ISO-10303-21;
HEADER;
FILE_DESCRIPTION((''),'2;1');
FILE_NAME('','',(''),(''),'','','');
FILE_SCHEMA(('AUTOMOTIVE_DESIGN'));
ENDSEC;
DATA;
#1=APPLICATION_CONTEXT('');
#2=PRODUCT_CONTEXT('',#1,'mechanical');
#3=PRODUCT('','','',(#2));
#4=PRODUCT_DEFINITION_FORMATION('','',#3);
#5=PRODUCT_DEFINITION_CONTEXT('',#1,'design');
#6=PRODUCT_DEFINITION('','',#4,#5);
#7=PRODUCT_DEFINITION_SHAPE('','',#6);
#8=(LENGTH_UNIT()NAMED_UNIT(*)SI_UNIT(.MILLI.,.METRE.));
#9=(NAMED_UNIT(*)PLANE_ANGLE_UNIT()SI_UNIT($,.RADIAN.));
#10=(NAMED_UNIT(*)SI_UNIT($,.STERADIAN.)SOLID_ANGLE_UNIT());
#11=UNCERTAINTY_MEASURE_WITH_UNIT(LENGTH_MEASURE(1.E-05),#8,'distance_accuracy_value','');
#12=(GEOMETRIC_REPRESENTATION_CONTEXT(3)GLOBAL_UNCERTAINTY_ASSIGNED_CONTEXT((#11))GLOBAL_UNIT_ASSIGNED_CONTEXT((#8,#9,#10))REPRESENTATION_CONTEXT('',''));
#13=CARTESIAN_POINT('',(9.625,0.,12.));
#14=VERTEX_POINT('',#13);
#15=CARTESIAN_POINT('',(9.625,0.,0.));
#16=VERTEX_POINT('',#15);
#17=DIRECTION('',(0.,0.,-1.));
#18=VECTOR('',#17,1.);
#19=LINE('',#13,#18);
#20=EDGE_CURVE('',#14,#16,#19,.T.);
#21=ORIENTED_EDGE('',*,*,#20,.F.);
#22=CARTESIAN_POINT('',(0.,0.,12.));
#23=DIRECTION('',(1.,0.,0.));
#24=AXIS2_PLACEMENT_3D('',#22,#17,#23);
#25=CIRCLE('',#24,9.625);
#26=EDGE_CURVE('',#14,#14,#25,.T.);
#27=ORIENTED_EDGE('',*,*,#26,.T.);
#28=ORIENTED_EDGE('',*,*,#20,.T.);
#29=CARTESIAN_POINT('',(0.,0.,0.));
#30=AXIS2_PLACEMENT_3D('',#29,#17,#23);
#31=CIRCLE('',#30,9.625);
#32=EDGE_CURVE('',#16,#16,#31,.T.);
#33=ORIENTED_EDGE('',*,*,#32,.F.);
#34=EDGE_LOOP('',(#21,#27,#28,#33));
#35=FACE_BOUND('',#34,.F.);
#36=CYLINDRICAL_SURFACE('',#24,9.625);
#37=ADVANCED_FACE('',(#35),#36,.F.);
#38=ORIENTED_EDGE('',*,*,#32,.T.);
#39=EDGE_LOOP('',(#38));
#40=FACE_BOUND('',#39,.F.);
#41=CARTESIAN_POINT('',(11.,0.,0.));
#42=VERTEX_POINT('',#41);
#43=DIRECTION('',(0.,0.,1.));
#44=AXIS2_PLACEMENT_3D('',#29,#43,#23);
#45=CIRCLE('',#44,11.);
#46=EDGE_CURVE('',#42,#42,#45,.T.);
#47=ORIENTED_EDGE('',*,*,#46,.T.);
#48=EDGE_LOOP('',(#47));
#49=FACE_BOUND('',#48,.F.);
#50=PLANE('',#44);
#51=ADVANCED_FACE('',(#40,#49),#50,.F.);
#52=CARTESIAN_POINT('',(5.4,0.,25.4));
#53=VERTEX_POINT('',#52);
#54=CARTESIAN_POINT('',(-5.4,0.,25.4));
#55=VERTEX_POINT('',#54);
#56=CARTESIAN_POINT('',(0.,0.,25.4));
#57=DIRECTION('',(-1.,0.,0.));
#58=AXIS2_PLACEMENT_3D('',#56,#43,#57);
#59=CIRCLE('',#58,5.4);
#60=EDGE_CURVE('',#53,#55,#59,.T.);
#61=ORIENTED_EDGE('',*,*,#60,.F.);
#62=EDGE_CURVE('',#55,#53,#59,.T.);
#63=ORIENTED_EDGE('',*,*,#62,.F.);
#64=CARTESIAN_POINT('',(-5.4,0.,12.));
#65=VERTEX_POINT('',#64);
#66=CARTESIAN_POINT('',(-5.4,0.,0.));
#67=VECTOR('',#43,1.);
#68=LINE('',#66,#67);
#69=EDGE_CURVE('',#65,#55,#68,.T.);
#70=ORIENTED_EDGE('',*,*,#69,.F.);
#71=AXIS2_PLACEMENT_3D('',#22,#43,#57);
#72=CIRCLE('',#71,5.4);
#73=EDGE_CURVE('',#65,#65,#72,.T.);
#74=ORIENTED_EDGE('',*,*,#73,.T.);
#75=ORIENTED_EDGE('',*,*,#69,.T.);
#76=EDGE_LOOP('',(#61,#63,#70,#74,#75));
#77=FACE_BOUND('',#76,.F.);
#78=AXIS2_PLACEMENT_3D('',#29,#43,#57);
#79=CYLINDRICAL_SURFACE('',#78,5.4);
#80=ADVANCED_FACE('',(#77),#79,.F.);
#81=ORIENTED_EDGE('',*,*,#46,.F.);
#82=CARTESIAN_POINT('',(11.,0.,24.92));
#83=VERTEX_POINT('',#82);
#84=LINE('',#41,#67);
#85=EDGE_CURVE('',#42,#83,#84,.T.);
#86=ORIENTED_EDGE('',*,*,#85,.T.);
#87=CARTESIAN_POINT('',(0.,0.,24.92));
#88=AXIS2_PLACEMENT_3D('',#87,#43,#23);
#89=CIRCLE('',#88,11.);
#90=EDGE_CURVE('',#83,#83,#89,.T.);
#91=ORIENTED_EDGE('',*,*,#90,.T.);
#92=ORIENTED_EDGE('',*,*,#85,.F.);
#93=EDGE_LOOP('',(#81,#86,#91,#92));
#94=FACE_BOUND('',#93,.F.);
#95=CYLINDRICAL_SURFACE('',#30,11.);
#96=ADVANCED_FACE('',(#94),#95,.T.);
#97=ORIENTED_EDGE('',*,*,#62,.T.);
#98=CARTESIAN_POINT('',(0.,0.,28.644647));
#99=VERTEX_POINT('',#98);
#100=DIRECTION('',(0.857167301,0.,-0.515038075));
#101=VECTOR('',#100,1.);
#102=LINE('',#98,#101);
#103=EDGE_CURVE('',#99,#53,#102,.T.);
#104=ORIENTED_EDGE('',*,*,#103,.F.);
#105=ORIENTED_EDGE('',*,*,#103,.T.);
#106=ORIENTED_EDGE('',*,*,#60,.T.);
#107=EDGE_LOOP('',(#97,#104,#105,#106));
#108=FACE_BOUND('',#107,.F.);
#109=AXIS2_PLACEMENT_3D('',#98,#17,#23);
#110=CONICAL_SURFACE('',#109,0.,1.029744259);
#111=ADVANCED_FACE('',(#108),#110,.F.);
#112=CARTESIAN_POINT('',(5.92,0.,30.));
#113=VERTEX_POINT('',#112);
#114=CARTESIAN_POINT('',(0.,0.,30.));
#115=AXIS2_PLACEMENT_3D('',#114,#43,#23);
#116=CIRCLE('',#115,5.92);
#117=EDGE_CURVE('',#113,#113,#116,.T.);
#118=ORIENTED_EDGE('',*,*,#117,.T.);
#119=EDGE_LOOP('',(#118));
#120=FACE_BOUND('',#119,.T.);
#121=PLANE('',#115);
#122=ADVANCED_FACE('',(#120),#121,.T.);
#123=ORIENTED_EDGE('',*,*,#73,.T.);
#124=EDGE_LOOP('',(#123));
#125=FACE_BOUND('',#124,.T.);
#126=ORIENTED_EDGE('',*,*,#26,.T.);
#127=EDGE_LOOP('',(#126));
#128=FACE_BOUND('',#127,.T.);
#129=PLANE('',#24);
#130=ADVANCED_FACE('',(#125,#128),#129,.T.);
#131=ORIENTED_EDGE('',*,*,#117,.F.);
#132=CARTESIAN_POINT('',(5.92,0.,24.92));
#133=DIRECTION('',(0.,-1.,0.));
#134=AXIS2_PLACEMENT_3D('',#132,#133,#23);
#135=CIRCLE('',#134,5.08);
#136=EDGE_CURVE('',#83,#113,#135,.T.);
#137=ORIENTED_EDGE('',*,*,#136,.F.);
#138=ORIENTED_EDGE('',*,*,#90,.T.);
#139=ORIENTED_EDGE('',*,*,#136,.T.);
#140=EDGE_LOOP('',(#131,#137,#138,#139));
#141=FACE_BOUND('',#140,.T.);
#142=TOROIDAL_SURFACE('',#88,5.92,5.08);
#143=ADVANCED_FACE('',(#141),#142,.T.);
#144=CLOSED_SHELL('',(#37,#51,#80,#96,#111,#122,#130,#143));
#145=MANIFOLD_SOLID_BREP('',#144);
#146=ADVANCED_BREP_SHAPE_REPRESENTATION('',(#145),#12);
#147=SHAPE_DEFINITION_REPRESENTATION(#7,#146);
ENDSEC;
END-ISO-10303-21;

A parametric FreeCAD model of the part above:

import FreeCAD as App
import Part
import Sketcher
from FreeCAD import Vector


def edges_at(feature, points):
    """Names of the edges that pass closest to the given points."""
    edges = feature.Shape.Edges
    near = lambda p: min(range(len(edges)), key=lambda i: edges[i].distToShape(Part.Vertex(*p))[0])
    return sorted({f"Edge{near(p) + 1}" for p in points})

doc = App.newDocument("Part")
body = doc.addObject("PartDesign::Body", "Body")

sketch1 = doc.addObject("Sketcher::SketchObject", "Sketch")
body.addObject(sketch1)
sketch1.AttachmentSupport = (doc.XY_Plane, [""])
sketch1.MapMode = "FlatFace"
sketch1.addGeometry(Part.Circle(Vector(0, 0, 0), Vector(0, 0, 1), 11), False)
sketch1.addConstraint([
    Sketcher.Constraint("Coincident", 0, 3, -1, 1),
    Sketcher.Constraint("Diameter", 0, 22.0),
])
pad1 = doc.addObject("PartDesign::Pad", "Pad")
body.addObject(pad1)
pad1.Profile = sketch1
pad1.Length = 30

sketch2 = doc.addObject("Sketcher::SketchObject", "Sketch001")
body.addObject(sketch2)
sketch2.AttachmentSupport = (doc.XY_Plane, [""])
sketch2.MapMode = "FlatFace"
sketch2.addGeometry(Part.Circle(Vector(0, 0, 0), Vector(0, 0, 1), 5.4), False)
sketch2.addConstraint([
    Sketcher.Constraint("Coincident", 0, 3, -1, 1),
    Sketcher.Constraint("Diameter", 0, 10.8),
])
doc.recompute()
hole = doc.addObject("PartDesign::Hole", "Hole")
body.addObject(hole)
hole.Profile = sketch2
hole.ThreadType = "None"
hole.Diameter = 10.8
hole.DepthType = "Dimension"
hole.Depth = 25.4
hole.DrillPoint = "Angled"
hole.DrillPointAngle = 118
hole.HoleCutType = "Counterbore"
hole.HoleCutDiameter = 19.25
hole.HoleCutDepth = 12
hole.Reversed = True
doc.recompute()

fillet = doc.addObject("PartDesign::Fillet", "Fillet")
body.addObject(fillet)
fillet.Base = (hole, edges_at(hole, [(-11, 0, 30)]))
fillet.Radius = 5.08

doc.recompute()
